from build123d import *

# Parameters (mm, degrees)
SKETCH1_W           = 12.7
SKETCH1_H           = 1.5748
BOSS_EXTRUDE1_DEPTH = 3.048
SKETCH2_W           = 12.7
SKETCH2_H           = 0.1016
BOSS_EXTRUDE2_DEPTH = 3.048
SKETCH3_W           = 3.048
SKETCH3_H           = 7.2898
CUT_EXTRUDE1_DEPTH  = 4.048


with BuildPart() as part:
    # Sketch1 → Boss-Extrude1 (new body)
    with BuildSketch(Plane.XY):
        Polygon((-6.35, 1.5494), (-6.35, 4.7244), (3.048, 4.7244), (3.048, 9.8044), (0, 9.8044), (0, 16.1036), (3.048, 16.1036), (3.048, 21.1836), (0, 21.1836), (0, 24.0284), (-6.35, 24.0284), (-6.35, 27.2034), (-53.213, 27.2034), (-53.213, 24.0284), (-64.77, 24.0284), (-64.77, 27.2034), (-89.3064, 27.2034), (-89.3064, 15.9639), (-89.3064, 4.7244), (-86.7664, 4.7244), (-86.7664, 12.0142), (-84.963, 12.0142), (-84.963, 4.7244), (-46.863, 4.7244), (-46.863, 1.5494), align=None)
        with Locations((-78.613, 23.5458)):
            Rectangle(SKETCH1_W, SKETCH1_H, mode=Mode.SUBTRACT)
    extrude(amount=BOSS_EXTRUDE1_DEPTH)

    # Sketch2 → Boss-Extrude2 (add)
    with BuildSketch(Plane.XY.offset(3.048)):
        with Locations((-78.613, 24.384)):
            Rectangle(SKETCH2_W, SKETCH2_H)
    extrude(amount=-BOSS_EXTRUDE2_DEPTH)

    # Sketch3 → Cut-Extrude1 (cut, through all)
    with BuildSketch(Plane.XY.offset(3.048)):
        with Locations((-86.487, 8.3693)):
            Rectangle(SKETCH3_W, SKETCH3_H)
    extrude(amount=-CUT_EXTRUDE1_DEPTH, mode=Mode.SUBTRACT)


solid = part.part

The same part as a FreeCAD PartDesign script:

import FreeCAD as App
import Part
import Sketcher
from FreeCAD import Vector
Q = App.Units.Quantity

doc = App.newDocument("Part")
body = doc.addObject("PartDesign::Body", "Body")

sketch1 = body.newObject("Sketcher::SketchObject", "Sketch")
sketch1.AttachmentSupport = (doc.getObject("XY_Plane"), [""])
sketch1.MapMode = "FlatFace"
sketch1.addGeometry([
    Part.LineSegment(Vector(-6.35, 1.5494, 0), Vector(-6.35, 4.7244, 0)),
    Part.LineSegment(Vector(-6.35, 4.7244, 0), Vector(3.048, 4.7244, 0)),
    Part.LineSegment(Vector(3.048, 4.7244, 0), Vector(3.048, 9.8044, 0)),
    Part.LineSegment(Vector(3.048, 9.8044, 0), Vector(0, 9.8044, 0)),
    Part.LineSegment(Vector(0, 9.8044, 0), Vector(0, 16.1036, 0)),
    Part.LineSegment(Vector(0, 16.1036, 0), Vector(3.048, 16.1036, 0)),
    Part.LineSegment(Vector(3.048, 16.1036, 0), Vector(3.048, 21.1836, 0)),
    Part.LineSegment(Vector(3.048, 21.1836, 0), Vector(0, 21.1836, 0)),
    Part.LineSegment(Vector(0, 21.1836, 0), Vector(0, 24.0284, 0)),
    Part.LineSegment(Vector(0, 24.0284, 0), Vector(-6.35, 24.0284, 0)),
    Part.LineSegment(Vector(-6.35, 24.0284, 0), Vector(-6.35, 27.2034, 0)),
    Part.LineSegment(Vector(-6.35, 27.2034, 0), Vector(-53.213, 27.2034, 0)),
    Part.LineSegment(Vector(-53.213, 27.2034, 0), Vector(-53.213, 24.0284, 0)),
    Part.LineSegment(Vector(-53.213, 24.0284, 0), Vector(-64.77, 24.0284, 0)),
    Part.LineSegment(Vector(-64.77, 24.0284, 0), Vector(-64.77, 27.2034, 0)),
    Part.LineSegment(Vector(-64.77, 27.2034, 0), Vector(-89.3064, 27.2034, 0)),
    Part.LineSegment(Vector(-89.3064, 27.2034, 0), Vector(-89.3064, 4.7244, 0)),
    Part.LineSegment(Vector(-89.3064, 4.7244, 0), Vector(-86.7664, 4.7244, 0)),
    Part.LineSegment(Vector(-86.7664, 4.7244, 0), Vector(-86.7664, 12.0142, 0)),
    Part.LineSegment(Vector(-86.7664, 12.0142, 0), Vector(-84.963, 12.0142, 0)),
    Part.LineSegment(Vector(-84.963, 12.0142, 0), Vector(-84.963, 4.7244, 0)),
    Part.LineSegment(Vector(-84.963, 4.7244, 0), Vector(-46.863, 4.7244, 0)),
    Part.LineSegment(Vector(-46.863, 4.7244, 0), Vector(-46.863, 1.5494, 0)),
    Part.LineSegment(Vector(-46.863, 1.5494, 0), Vector(-6.35, 1.5494, 0)),
    Part.LineSegment(Vector(-72.263, 22.7584, 0), Vector(-84.963, 22.7584, 0)),
    Part.LineSegment(Vector(-84.963, 22.7584, 0), Vector(-84.963, 24.3332, 0)),
    Part.LineSegment(Vector(-84.963, 24.3332, 0), Vector(-72.263, 24.3332, 0)),
    Part.LineSegment(Vector(-72.263, 24.3332, 0), Vector(-72.263, 22.7584, 0)),
], False)
sketch1.addConstraint([
    Sketcher.Constraint("Coincident", 0, 2, 1, 1),
    Sketcher.Constraint("Coincident", 1, 2, 2, 1),
    Sketcher.Constraint("Coincident", 2, 2, 3, 1),
    Sketcher.Constraint("Coincident", 3, 2, 4, 1),
    Sketcher.Constraint("Coincident", 4, 2, 5, 1),
    Sketcher.Constraint("Coincident", 5, 2, 6, 1),
    Sketcher.Constraint("Coincident", 6, 2, 7, 1),
    Sketcher.Constraint("Coincident", 7, 2, 8, 1),
    Sketcher.Constraint("Coincident", 8, 2, 9, 1),
    Sketcher.Constraint("Coincident", 9, 2, 10, 1),
    Sketcher.Constraint("Coincident", 10, 2, 11, 1),
    Sketcher.Constraint("Coincident", 11, 2, 12, 1),
    Sketcher.Constraint("Coincident", 12, 2, 13, 1),
    Sketcher.Constraint("Coincident", 13, 2, 14, 1),
    Sketcher.Constraint("Coincident", 14, 2, 15, 1),
    Sketcher.Constraint("Coincident", 15, 2, 16, 1),
    Sketcher.Constraint("Coincident", 16, 2, 17, 1),
    Sketcher.Constraint("Coincident", 17, 2, 18, 1),
    Sketcher.Constraint("Coincident", 18, 2, 19, 1),
    Sketcher.Constraint("Coincident", 19, 2, 20, 1),
    Sketcher.Constraint("Coincident", 20, 2, 21, 1),
    Sketcher.Constraint("Coincident", 21, 2, 22, 1),
    Sketcher.Constraint("Coincident", 22, 2, 23, 1),
    Sketcher.Constraint("Coincident", 23, 2, 0, 1),
    Sketcher.Constraint("Coincident", 24, 2, 25, 1),
    Sketcher.Constraint("Coincident", 25, 2, 26, 1),
    Sketcher.Constraint("Coincident", 26, 2, 27, 1),
    Sketcher.Constraint("Coincident", 27, 2, 24, 1),
    Sketcher.Constraint("Vertical", 0),
    Sketcher.Constraint("Horizontal", 1),
    Sketcher.Constraint("Vertical", 2),
    Sketcher.Constraint("Horizontal", 3),
    Sketcher.Constraint("Vertical", 4),
    Sketcher.Constraint("Horizontal", 5),
    Sketcher.Constraint("Vertical", 6),
    Sketcher.Constraint("Horizontal", 7),
    Sketcher.Constraint("Vertical", 8),
    Sketcher.Constraint("Horizontal", 9),
    Sketcher.Constraint("Vertical", 10),
    Sketcher.Constraint("Horizontal", 11),
    Sketcher.Constraint("Vertical", 12),
    Sketcher.Constraint("Horizontal", 13),
    Sketcher.Constraint("Vertical", 14),
    Sketcher.Constraint("Horizontal", 15),
    Sketcher.Constraint("Vertical", 16),
    Sketcher.Constraint("Horizontal", 17),
    Sketcher.Constraint("Vertical", 18),
    Sketcher.Constraint("Horizontal", 19),
    Sketcher.Constraint("Vertical", 20),
    Sketcher.Constraint("Horizontal", 21),
    Sketcher.Constraint("Vertical", 22),
    Sketcher.Constraint("Horizontal", 23),
    Sketcher.Constraint("Horizontal", 24),
    Sketcher.Constraint("Vertical", 25),
    Sketcher.Constraint("Horizontal", 26),
    Sketcher.Constraint("Vertical", 27),
    Sketcher.Constraint("PointOnObject", 3, 2, -2),
    Sketcher.Constraint("PointOnObject", 7, 2, -2),
    Sketcher.Constraint("Horizontal", 9, 2, 12, 2),
    Sketcher.Constraint("Horizontal", 11, 2, 14, 2),
    Sketcher.Constraint("Horizontal", 1, 2, 16, 2),
    Sketcher.Constraint("Horizontal", 17, 2, 20, 2),
    Sketcher.Constraint("Vertical", 2, 2, 5, 2),
    Sketcher.Constraint("Vertical", 0, 2, 9, 2),
    Sketcher.Constraint("Vertical", 20, 2, 24, 2),
    Sketcher.Constraint("Equal", 2, 6),
    Sketcher.Constraint("Equal", 0, 10),
    Sketcher.Constraint("DistanceX", 17, 1, 17, 2, Q("0.1 in")),
    Sketcher.Constraint("DistanceX", 21, 1, 21, 2, Q("1.5 in")),
    Sketcher.Constraint("DistanceX", 24, 2, 24, 1, Q("0.5 in")),
    Sketcher.Constraint("DistanceY", 2, 1, 2, 2, Q("0.2 in")),
    Sketcher.Constraint("DistanceX", 1, 1, 1, 2, Q("0.37 in")),
    Sketcher.Constraint("DistanceX", 3, 2, 3, 1, Q("0.12 in")),
    Sketcher.Constraint("DistanceX", 13, 2, 9, 2, Q("2.3 in")),
    Sketcher.Constraint("DistanceX", 11, 2, 11, 1, Q("1.845 in")),
    Sketcher.Constraint("DistanceX", 15, 2, 15, 1, Q("0.966 in")),
    Sketcher.Constraint("DistanceX", 19, 1, 19, 2, Q("0.071 in")),
    Sketcher.Constraint("DistanceY", 0, 1, 0, 2, Q("0.125 in")),
    Sketcher.Constraint("DistanceY", 4, 1, 4, 2, Q("0.248 in")),
    Sketcher.Constraint("DistanceY", 8, 1, 8, 2, Q("0.112 in")),
    Sketcher.Constraint("DistanceY", 18, 1, 18, 2, Q("0.287 in")),
    Sketcher.Constraint("DistanceY", 25, 1, 25, 2, Q("0.062 in")),
    Sketcher.Constraint("DistanceY", 20, 2, 24, 2, Q("0.71 in")),
    Sketcher.Constraint("DistanceY", -1, 1, 0, 2, Q("0.186 in")),
])
pad1 = body.newObject("PartDesign::Pad", "Pad")
pad1.Profile = sketch1
pad1.Length = Q("0.12 in")

sketch2 = body.newObject("Sketcher::SketchObject", "Sketch001")
sketch2.AttachmentSupport = (doc.getObject("XY_Plane"), [""])
sketch2.MapMode = "FlatFace"
sketch2.AttachmentOffset = App.Placement(Vector(0, 0, 0.12 * 25.4), App.Rotation())
sketch2.addGeometry([
    Part.LineSegment(Vector(-84.963, 24.4348, 0), Vector(-84.963, 24.3332, 0)),
    Part.LineSegment(Vector(-84.963, 24.3332, 0), Vector(-72.263, 24.3332, 0)),
    Part.LineSegment(Vector(-72.263, 24.3332, 0), Vector(-72.263, 24.4348, 0)),
    Part.LineSegment(Vector(-72.263, 24.4348, 0), Vector(-84.963, 24.4348, 0)),
], False)
sketch2.addConstraint([
    Sketcher.Constraint("Coincident", 0, 2, 1, 1),
    Sketcher.Constraint("Coincident", 1, 2, 2, 1),
    Sketcher.Constraint("Coincident", 2, 2, 3, 1),
    Sketcher.Constraint("Coincident", 3, 2, 0, 1),
    Sketcher.Constraint("Vertical", 0),
    Sketcher.Constraint("Horizontal", 1),
    Sketcher.Constraint("Vertical", 2),
    Sketcher.Constraint("Horizontal", 3),
    Sketcher.Constraint("DistanceX", 1, 1, 1, 2, Q("0.5 in")),
    Sketcher.Constraint("DistanceY", 0, 2, 0, 1, Q("0.004 in")),
    Sketcher.Constraint("DistanceX", 0, 2, -1, 1, Q("3.345 in")),
    Sketcher.Constraint("DistanceY", -1, 1, 0, 2, Q("0.958 in")),
])
pad2 = body.newObject("PartDesign::Pad", "Pad001")
pad2.Profile = sketch2
pad2.Length = Q("0.12 in")
pad2.Reversed = True

sketch3 = body.newObject("Sketcher::SketchObject", "Sketch002")
sketch3.AttachmentSupport = (doc.getObject("XY_Plane"), [""])
sketch3.MapMode = "FlatFace"
sketch3.AttachmentOffset = App.Placement(Vector(0, 0, 0.12 * 25.4), App.Rotation())
sketch3.addGeometry([
    Part.LineSegment(Vector(-88.011, 12.0142, 0), Vector(-88.011, 4.7244, 0)),
    Part.LineSegment(Vector(-88.011, 4.7244, 0), Vector(-84.963, 4.7244, 0)),
    Part.LineSegment(Vector(-84.963, 4.7244, 0), Vector(-84.963, 12.0142, 0)),
    Part.LineSegment(Vector(-84.963, 12.0142, 0), Vector(-88.011, 12.0142, 0)),
], False)
sketch3.addConstraint([
    Sketcher.Constraint("Coincident", 0, 2, 1, 1),
    Sketcher.Constraint("Coincident", 1, 2, 2, 1),
    Sketcher.Constraint("Coincident", 2, 2, 3, 1),
    Sketcher.Constraint("Coincident", 3, 2, 0, 1),
    Sketcher.Constraint("Vertical", 0),
    Sketcher.Constraint("Horizontal", 1),
    Sketcher.Constraint("Vertical", 2),
    Sketcher.Constraint("Horizontal", 3),
    Sketcher.Constraint("DistanceX", 1, 1, 1, 2, Q("0.12 in")),
    Sketcher.Constraint("DistanceY", 0, 2, 0, 1, Q("0.287 in")),
    Sketcher.Constraint("DistanceX", 0, 2, -1, 1, Q("3.465 in")),
    Sketcher.Constraint("DistanceY", -1, 1, 0, 2, Q("0.186 in")),
])
pocket1 = body.newObject("PartDesign::Pocket", "Pocket")
pocket1.Profile = sketch3
pocket1.Type = "ThroughAll"

doc.recompute()
